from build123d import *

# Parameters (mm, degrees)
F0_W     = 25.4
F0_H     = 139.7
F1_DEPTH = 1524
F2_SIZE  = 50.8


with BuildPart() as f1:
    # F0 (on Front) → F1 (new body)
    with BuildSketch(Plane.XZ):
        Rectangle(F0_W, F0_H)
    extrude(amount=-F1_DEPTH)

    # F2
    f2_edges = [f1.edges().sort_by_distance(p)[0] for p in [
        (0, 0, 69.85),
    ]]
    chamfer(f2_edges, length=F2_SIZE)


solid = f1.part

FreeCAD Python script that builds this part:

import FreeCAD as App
import Part
import Sketcher

V = App.Vector
Q = App.Units.Quantity


def edges_at(feature, points):
    """Names of the edges that pass closest to the given points."""
    edges = feature.Shape.Edges
    near = lambda p: min(range(len(edges)), key=lambda i: edges[i].distToShape(Part.Vertex(*p))[0])
    return sorted({f"Edge{near(p) + 1}" for p in points})


def add_polygon(sketch, points):
    """Adds a closed chain of lines whose ends are joined by coincident constraints."""
    first, n = sketch.GeometryCount, len(points)
    for a, b in zip(points, points[1:] + points[:1]):
        sketch.addGeometry(Part.LineSegment(App.Vector(*a, 0), App.Vector(*b, 0)), False)
    for i in range(n):
        sketch.addConstraint(Sketcher.Constraint("Coincident", first + i, 2, first + (i + 1) % n, 1))

doc = App.newDocument("Part")
params = doc.addObject("Spreadsheet::Sheet", "Params")
for row, (alias, value) in enumerate([
    ("sketch1_width", "1 in"),
    ("sketch1_height", "5.5 in"),
    ("pad1_length", "60 in"),
    ("chamfer_size", "2 in"),
], start=1):
    params.set(f"A{row}", alias)
    params.set(f"B{row}", "=" + value)
    params.setAlias(f"B{row}", alias)

body = doc.addObject("PartDesign::Body", "Body")

# Sketch on XZ plane
sketch1 = body.newObject("Sketcher::SketchObject", "Sketch")
sketch1.AttachmentSupport = (doc.getObject("XZ_Plane"), [""])
sketch1.MapMode = "FlatFace"
add_polygon(sketch1, [(-13, 70), (-13, -70), (13, -70), (13, 70)])  # lines 0-3
sketch1.addConstraint(Sketcher.Constraint("Vertical", 0))
sketch1.addConstraint(Sketcher.Constraint("Horizontal", 1))
sketch1.addConstraint(Sketcher.Constraint("Vertical", 2))
sketch1.addConstraint(Sketcher.Constraint("Horizontal", 3))
sketch1.addConstraint(Sketcher.Constraint("Symmetric", 0, 2, 2, 2, -1, 1))
sketch1.addConstraint(Sketcher.Constraint("DistanceX", 1, 1, 1, 2, Q("1 in")))
sketch1.addConstraint(Sketcher.Constraint("DistanceY", 0, 2, 0, 1, Q("5.5 in")))
sketch1.setExpression("Constraints[9]", "Params.sketch1_width")
sketch1.setExpression("Constraints[10]", "Params.sketch1_height")
pad1 = body.newObject("PartDesign::Pad", "Pad")
pad1.Profile = sketch1
pad1.setExpression("Length", "Params.pad1_length")
pad1.Reversed = True
doc.recompute()

chamfer = body.newObject("PartDesign::Chamfer", "Chamfer")
chamfer.Base = (pad1, edges_at(pad1, [(0, 0, 69.85)]))
chamfer.setExpression("Size", "Params.chamfer_size")

doc.recompute()
